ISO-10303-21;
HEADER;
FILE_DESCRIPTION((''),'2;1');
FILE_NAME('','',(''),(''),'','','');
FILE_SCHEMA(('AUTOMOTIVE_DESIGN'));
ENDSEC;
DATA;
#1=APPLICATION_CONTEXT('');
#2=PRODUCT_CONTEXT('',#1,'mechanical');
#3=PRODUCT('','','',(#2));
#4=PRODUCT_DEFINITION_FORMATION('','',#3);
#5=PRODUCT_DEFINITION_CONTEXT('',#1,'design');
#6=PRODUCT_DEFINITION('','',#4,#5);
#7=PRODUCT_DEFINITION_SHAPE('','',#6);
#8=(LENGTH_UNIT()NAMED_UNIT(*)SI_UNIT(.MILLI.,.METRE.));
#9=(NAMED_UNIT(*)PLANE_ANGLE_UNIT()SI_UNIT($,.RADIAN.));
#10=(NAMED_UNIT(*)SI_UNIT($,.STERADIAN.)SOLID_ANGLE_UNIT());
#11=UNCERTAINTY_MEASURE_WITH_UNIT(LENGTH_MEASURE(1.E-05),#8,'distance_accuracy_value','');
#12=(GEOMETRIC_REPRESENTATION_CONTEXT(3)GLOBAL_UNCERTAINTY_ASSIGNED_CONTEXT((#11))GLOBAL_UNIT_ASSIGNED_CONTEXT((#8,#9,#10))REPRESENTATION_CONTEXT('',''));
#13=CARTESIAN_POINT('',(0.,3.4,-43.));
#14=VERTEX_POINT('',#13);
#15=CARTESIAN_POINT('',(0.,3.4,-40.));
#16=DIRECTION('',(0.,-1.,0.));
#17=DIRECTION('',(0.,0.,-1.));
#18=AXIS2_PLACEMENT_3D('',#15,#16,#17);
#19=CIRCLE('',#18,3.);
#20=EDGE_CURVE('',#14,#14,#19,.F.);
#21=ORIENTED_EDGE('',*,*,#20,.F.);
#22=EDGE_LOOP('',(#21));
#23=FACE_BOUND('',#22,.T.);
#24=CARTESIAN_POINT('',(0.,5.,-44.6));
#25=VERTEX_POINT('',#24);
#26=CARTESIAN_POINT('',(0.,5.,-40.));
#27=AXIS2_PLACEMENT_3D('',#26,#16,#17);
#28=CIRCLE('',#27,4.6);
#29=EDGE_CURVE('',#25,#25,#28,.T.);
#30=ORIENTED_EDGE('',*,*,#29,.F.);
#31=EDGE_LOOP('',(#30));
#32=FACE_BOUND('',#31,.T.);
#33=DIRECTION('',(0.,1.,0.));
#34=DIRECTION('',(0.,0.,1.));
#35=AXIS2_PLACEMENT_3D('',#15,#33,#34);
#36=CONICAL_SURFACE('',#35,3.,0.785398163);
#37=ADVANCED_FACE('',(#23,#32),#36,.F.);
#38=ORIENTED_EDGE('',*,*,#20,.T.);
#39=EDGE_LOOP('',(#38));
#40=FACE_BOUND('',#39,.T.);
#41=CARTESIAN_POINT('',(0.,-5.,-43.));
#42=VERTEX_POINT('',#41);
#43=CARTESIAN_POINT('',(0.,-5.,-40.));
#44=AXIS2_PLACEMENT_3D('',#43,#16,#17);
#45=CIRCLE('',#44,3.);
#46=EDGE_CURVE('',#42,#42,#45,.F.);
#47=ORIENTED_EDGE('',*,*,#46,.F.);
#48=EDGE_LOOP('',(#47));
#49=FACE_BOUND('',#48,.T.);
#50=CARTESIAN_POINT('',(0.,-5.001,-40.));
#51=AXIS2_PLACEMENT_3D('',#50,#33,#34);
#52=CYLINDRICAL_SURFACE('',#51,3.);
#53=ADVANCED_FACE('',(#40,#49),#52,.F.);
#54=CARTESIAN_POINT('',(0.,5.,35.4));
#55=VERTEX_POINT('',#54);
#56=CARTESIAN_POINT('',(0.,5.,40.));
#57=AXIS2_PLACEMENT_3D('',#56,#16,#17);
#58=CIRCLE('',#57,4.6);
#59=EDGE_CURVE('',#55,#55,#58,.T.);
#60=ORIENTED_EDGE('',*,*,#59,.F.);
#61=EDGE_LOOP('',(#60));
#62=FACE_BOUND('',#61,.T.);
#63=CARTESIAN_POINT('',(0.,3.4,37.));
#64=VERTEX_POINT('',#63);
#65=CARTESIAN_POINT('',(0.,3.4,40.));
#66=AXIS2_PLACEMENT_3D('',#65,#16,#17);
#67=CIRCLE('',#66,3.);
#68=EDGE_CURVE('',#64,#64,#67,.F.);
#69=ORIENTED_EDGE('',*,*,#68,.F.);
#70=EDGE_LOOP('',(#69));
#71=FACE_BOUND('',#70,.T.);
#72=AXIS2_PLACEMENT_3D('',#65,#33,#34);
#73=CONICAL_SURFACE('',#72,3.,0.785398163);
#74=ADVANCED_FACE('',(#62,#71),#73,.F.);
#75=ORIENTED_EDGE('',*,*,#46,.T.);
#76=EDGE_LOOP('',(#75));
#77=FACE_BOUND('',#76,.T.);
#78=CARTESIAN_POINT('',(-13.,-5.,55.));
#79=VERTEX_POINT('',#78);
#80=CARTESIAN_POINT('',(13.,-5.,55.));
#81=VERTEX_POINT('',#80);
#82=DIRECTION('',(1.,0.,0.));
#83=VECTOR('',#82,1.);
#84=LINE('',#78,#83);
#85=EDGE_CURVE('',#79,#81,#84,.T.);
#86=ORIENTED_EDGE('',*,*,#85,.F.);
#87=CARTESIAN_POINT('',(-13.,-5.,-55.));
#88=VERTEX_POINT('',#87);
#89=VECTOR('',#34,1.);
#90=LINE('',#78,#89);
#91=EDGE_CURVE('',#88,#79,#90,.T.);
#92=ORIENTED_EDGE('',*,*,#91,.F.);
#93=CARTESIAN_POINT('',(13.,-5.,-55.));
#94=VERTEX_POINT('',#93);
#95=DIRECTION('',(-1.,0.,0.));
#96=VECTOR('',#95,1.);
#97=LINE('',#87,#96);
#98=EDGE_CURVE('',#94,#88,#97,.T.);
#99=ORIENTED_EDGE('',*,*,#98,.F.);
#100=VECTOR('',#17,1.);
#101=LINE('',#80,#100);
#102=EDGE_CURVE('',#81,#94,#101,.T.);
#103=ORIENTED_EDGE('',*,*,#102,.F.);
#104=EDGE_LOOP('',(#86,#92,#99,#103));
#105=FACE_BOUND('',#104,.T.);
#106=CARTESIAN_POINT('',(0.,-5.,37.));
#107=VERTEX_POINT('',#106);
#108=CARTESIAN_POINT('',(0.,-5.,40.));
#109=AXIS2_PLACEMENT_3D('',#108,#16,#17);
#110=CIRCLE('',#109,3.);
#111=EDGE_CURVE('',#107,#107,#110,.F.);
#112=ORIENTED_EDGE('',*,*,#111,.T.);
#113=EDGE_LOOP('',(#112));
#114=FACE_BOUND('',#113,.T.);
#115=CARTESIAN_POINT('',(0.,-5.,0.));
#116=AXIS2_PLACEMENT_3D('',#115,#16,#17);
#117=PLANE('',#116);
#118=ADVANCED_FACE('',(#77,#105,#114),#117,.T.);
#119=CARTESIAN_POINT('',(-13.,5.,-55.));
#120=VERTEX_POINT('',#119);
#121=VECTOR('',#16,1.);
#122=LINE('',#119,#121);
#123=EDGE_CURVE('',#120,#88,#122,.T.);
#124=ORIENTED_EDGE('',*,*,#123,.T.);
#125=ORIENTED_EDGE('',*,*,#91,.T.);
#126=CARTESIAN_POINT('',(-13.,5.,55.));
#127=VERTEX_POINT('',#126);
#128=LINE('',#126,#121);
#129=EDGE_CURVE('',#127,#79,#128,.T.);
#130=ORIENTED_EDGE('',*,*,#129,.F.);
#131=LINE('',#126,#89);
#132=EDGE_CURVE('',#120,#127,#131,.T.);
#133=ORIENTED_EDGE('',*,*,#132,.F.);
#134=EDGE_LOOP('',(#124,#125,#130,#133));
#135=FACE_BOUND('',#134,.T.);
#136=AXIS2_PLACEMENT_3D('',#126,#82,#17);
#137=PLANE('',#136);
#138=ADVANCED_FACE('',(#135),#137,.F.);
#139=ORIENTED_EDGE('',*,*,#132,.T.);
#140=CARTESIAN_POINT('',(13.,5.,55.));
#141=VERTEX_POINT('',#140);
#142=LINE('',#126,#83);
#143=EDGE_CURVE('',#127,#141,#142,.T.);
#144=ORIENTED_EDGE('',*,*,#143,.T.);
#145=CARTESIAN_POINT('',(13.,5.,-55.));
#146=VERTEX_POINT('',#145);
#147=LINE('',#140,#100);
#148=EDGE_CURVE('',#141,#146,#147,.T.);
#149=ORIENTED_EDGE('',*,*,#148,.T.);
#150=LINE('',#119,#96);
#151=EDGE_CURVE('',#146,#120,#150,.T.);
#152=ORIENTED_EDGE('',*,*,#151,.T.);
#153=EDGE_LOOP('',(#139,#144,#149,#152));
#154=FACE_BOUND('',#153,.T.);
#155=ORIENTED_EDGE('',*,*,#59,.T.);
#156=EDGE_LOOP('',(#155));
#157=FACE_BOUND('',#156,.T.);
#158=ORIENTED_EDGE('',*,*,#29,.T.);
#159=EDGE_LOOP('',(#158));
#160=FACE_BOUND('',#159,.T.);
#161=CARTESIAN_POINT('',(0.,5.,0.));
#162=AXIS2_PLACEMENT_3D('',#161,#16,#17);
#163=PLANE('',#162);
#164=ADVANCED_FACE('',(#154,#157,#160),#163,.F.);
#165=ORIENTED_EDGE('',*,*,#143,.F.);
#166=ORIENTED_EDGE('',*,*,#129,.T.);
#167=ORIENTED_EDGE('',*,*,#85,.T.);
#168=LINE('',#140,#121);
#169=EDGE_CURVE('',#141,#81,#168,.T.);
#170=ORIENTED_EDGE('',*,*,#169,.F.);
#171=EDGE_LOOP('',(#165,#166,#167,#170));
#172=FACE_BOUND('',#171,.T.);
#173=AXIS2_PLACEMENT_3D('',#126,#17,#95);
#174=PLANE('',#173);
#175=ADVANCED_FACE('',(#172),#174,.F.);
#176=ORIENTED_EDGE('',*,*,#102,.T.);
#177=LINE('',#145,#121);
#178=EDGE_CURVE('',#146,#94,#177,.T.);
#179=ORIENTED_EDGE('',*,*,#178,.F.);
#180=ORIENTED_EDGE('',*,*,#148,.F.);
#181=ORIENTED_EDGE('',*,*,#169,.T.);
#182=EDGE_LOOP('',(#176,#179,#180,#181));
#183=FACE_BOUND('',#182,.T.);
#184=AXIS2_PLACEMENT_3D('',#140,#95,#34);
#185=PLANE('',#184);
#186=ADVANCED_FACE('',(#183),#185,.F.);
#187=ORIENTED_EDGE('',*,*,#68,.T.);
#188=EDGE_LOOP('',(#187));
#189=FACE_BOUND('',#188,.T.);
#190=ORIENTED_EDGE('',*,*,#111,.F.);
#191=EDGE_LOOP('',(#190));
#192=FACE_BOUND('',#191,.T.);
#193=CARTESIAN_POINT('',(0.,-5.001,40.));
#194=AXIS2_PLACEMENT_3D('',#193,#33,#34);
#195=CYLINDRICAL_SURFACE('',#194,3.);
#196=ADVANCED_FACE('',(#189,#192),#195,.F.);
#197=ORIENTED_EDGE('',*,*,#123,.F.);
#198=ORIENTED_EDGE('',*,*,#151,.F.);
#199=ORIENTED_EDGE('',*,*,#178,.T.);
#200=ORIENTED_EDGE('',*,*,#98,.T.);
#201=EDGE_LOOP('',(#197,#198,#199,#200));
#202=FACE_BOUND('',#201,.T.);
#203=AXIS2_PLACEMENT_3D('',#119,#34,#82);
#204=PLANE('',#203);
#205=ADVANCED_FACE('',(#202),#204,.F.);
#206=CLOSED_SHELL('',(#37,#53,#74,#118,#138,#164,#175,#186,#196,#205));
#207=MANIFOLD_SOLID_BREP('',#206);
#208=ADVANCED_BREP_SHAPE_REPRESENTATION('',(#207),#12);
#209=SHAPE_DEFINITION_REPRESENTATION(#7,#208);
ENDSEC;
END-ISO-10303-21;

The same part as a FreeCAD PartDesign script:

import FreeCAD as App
import Part
import Sketcher
from FreeCAD import Vector


def edges_at(feature, points):
    """Names of the edges that pass closest to the given points."""
    edges = feature.Shape.Edges
    near = lambda p: min(range(len(edges)), key=lambda i: edges[i].distToShape(Part.Vertex(*p))[0])
    return sorted({f"Edge{near(p) + 1}" for p in points})

doc = App.newDocument("Part")
body = doc.addObject("PartDesign::Body", "Body")

# Sketch on XZ plane
sketch1 = body.newObject("Sketcher::SketchObject", "Sketch")
sketch1.AttachmentSupport = (doc.getObject("XZ_Plane"), [""])
sketch1.MapMode = "FlatFace"
sketch1.addGeometry([
    Part.LineSegment(Vector(-13, -55, 0), Vector(-13, 55, 0)),
    Part.LineSegment(Vector(-13, 55, 0), Vector(13, 55, 0)),
    Part.LineSegment(Vector(13, 55, 0), Vector(13, -55, 0)),
    Part.LineSegment(Vector(13, -55, 0), Vector(-13, -55, 0)),
], False)
sketch1.addConstraint([
    Sketcher.Constraint("Coincident", 0, 2, 1, 1),
    Sketcher.Constraint("Coincident", 1, 2, 2, 1),
    Sketcher.Constraint("Coincident", 2, 2, 3, 1),
    Sketcher.Constraint("Coincident", 3, 2, 0, 1),
    Sketcher.Constraint("Vertical", 0),
    Sketcher.Constraint("Horizontal", 1),
    Sketcher.Constraint("Vertical", 2),
    Sketcher.Constraint("Horizontal", 3),
    Sketcher.Constraint("Symmetric", 0, 2, 2, 2, -1, 1),
    Sketcher.Constraint("DistanceX", 1, 1, 1, 2, 26.0),
    Sketcher.Constraint("DistanceY", 0, 1, 0, 2, 110.0),
])
pad1 = body.newObject("PartDesign::Pad", "Pad")
pad1.Profile = sketch1
pad1.Length = 10
pad1.Midplane = True

# Sketch on XZ plane
sketch2 = body.newObject("Sketcher::SketchObject", "Sketch001")
sketch2.AttachmentSupport = (doc.getObject("XZ_Plane"), [""])
sketch2.MapMode = "FlatFace"
sketch2.AttachmentOffset = App.Placement(Vector(0, 0, -5), App.Rotation())
sketch2.addGeometry(Part.Circle(Vector(0, -40, 0), Vector(0, 0, 1), 3), False)
sketch2.addConstraint([
    Sketcher.Constraint("PointOnObject", 0, 3, -2),
    Sketcher.Constraint("Diameter", 0, 6.0),
    Sketcher.Constraint("DistanceY", 0, 3, -1, 1, 40.0),
])
pocket1 = body.newObject("PartDesign::Pocket", "Pocket")
pocket1.Profile = sketch2
pocket1.Type = "UpToFirst"
pocket1.Reversed = True

# Sketch on XZ plane
sketch3 = body.newObject("Sketcher::SketchObject", "Sketch002")
sketch3.AttachmentSupport = (doc.getObject("XZ_Plane"), [""])
sketch3.MapMode = "FlatFace"
sketch3.AttachmentOffset = App.Placement(Vector(0, 0, -5), App.Rotation())
sketch3.addGeometry(Part.Circle(Vector(0, 40, 0), Vector(0, 0, 1), 3), False)
sketch3.addConstraint([
    Sketcher.Constraint("PointOnObject", 0, 3, -2),
    Sketcher.Constraint("Diameter", 0, 6.0),
    Sketcher.Constraint("DistanceY", -1, 1, 0, 3, 40.0),
])
pocket2 = body.newObject("PartDesign::Pocket", "Pocket001")
pocket2.Profile = sketch3
pocket2.Type = "UpToFirst"
pocket2.Reversed = True
doc.recompute()

chamfer = body.newObject("PartDesign::Chamfer", "Chamfer")
chamfer.Base = (pocket2, edges_at(pocket2, [(0, 5, -43), (0, 5, 37)]))
chamfer.Size = 1.6

doc.recompute()
